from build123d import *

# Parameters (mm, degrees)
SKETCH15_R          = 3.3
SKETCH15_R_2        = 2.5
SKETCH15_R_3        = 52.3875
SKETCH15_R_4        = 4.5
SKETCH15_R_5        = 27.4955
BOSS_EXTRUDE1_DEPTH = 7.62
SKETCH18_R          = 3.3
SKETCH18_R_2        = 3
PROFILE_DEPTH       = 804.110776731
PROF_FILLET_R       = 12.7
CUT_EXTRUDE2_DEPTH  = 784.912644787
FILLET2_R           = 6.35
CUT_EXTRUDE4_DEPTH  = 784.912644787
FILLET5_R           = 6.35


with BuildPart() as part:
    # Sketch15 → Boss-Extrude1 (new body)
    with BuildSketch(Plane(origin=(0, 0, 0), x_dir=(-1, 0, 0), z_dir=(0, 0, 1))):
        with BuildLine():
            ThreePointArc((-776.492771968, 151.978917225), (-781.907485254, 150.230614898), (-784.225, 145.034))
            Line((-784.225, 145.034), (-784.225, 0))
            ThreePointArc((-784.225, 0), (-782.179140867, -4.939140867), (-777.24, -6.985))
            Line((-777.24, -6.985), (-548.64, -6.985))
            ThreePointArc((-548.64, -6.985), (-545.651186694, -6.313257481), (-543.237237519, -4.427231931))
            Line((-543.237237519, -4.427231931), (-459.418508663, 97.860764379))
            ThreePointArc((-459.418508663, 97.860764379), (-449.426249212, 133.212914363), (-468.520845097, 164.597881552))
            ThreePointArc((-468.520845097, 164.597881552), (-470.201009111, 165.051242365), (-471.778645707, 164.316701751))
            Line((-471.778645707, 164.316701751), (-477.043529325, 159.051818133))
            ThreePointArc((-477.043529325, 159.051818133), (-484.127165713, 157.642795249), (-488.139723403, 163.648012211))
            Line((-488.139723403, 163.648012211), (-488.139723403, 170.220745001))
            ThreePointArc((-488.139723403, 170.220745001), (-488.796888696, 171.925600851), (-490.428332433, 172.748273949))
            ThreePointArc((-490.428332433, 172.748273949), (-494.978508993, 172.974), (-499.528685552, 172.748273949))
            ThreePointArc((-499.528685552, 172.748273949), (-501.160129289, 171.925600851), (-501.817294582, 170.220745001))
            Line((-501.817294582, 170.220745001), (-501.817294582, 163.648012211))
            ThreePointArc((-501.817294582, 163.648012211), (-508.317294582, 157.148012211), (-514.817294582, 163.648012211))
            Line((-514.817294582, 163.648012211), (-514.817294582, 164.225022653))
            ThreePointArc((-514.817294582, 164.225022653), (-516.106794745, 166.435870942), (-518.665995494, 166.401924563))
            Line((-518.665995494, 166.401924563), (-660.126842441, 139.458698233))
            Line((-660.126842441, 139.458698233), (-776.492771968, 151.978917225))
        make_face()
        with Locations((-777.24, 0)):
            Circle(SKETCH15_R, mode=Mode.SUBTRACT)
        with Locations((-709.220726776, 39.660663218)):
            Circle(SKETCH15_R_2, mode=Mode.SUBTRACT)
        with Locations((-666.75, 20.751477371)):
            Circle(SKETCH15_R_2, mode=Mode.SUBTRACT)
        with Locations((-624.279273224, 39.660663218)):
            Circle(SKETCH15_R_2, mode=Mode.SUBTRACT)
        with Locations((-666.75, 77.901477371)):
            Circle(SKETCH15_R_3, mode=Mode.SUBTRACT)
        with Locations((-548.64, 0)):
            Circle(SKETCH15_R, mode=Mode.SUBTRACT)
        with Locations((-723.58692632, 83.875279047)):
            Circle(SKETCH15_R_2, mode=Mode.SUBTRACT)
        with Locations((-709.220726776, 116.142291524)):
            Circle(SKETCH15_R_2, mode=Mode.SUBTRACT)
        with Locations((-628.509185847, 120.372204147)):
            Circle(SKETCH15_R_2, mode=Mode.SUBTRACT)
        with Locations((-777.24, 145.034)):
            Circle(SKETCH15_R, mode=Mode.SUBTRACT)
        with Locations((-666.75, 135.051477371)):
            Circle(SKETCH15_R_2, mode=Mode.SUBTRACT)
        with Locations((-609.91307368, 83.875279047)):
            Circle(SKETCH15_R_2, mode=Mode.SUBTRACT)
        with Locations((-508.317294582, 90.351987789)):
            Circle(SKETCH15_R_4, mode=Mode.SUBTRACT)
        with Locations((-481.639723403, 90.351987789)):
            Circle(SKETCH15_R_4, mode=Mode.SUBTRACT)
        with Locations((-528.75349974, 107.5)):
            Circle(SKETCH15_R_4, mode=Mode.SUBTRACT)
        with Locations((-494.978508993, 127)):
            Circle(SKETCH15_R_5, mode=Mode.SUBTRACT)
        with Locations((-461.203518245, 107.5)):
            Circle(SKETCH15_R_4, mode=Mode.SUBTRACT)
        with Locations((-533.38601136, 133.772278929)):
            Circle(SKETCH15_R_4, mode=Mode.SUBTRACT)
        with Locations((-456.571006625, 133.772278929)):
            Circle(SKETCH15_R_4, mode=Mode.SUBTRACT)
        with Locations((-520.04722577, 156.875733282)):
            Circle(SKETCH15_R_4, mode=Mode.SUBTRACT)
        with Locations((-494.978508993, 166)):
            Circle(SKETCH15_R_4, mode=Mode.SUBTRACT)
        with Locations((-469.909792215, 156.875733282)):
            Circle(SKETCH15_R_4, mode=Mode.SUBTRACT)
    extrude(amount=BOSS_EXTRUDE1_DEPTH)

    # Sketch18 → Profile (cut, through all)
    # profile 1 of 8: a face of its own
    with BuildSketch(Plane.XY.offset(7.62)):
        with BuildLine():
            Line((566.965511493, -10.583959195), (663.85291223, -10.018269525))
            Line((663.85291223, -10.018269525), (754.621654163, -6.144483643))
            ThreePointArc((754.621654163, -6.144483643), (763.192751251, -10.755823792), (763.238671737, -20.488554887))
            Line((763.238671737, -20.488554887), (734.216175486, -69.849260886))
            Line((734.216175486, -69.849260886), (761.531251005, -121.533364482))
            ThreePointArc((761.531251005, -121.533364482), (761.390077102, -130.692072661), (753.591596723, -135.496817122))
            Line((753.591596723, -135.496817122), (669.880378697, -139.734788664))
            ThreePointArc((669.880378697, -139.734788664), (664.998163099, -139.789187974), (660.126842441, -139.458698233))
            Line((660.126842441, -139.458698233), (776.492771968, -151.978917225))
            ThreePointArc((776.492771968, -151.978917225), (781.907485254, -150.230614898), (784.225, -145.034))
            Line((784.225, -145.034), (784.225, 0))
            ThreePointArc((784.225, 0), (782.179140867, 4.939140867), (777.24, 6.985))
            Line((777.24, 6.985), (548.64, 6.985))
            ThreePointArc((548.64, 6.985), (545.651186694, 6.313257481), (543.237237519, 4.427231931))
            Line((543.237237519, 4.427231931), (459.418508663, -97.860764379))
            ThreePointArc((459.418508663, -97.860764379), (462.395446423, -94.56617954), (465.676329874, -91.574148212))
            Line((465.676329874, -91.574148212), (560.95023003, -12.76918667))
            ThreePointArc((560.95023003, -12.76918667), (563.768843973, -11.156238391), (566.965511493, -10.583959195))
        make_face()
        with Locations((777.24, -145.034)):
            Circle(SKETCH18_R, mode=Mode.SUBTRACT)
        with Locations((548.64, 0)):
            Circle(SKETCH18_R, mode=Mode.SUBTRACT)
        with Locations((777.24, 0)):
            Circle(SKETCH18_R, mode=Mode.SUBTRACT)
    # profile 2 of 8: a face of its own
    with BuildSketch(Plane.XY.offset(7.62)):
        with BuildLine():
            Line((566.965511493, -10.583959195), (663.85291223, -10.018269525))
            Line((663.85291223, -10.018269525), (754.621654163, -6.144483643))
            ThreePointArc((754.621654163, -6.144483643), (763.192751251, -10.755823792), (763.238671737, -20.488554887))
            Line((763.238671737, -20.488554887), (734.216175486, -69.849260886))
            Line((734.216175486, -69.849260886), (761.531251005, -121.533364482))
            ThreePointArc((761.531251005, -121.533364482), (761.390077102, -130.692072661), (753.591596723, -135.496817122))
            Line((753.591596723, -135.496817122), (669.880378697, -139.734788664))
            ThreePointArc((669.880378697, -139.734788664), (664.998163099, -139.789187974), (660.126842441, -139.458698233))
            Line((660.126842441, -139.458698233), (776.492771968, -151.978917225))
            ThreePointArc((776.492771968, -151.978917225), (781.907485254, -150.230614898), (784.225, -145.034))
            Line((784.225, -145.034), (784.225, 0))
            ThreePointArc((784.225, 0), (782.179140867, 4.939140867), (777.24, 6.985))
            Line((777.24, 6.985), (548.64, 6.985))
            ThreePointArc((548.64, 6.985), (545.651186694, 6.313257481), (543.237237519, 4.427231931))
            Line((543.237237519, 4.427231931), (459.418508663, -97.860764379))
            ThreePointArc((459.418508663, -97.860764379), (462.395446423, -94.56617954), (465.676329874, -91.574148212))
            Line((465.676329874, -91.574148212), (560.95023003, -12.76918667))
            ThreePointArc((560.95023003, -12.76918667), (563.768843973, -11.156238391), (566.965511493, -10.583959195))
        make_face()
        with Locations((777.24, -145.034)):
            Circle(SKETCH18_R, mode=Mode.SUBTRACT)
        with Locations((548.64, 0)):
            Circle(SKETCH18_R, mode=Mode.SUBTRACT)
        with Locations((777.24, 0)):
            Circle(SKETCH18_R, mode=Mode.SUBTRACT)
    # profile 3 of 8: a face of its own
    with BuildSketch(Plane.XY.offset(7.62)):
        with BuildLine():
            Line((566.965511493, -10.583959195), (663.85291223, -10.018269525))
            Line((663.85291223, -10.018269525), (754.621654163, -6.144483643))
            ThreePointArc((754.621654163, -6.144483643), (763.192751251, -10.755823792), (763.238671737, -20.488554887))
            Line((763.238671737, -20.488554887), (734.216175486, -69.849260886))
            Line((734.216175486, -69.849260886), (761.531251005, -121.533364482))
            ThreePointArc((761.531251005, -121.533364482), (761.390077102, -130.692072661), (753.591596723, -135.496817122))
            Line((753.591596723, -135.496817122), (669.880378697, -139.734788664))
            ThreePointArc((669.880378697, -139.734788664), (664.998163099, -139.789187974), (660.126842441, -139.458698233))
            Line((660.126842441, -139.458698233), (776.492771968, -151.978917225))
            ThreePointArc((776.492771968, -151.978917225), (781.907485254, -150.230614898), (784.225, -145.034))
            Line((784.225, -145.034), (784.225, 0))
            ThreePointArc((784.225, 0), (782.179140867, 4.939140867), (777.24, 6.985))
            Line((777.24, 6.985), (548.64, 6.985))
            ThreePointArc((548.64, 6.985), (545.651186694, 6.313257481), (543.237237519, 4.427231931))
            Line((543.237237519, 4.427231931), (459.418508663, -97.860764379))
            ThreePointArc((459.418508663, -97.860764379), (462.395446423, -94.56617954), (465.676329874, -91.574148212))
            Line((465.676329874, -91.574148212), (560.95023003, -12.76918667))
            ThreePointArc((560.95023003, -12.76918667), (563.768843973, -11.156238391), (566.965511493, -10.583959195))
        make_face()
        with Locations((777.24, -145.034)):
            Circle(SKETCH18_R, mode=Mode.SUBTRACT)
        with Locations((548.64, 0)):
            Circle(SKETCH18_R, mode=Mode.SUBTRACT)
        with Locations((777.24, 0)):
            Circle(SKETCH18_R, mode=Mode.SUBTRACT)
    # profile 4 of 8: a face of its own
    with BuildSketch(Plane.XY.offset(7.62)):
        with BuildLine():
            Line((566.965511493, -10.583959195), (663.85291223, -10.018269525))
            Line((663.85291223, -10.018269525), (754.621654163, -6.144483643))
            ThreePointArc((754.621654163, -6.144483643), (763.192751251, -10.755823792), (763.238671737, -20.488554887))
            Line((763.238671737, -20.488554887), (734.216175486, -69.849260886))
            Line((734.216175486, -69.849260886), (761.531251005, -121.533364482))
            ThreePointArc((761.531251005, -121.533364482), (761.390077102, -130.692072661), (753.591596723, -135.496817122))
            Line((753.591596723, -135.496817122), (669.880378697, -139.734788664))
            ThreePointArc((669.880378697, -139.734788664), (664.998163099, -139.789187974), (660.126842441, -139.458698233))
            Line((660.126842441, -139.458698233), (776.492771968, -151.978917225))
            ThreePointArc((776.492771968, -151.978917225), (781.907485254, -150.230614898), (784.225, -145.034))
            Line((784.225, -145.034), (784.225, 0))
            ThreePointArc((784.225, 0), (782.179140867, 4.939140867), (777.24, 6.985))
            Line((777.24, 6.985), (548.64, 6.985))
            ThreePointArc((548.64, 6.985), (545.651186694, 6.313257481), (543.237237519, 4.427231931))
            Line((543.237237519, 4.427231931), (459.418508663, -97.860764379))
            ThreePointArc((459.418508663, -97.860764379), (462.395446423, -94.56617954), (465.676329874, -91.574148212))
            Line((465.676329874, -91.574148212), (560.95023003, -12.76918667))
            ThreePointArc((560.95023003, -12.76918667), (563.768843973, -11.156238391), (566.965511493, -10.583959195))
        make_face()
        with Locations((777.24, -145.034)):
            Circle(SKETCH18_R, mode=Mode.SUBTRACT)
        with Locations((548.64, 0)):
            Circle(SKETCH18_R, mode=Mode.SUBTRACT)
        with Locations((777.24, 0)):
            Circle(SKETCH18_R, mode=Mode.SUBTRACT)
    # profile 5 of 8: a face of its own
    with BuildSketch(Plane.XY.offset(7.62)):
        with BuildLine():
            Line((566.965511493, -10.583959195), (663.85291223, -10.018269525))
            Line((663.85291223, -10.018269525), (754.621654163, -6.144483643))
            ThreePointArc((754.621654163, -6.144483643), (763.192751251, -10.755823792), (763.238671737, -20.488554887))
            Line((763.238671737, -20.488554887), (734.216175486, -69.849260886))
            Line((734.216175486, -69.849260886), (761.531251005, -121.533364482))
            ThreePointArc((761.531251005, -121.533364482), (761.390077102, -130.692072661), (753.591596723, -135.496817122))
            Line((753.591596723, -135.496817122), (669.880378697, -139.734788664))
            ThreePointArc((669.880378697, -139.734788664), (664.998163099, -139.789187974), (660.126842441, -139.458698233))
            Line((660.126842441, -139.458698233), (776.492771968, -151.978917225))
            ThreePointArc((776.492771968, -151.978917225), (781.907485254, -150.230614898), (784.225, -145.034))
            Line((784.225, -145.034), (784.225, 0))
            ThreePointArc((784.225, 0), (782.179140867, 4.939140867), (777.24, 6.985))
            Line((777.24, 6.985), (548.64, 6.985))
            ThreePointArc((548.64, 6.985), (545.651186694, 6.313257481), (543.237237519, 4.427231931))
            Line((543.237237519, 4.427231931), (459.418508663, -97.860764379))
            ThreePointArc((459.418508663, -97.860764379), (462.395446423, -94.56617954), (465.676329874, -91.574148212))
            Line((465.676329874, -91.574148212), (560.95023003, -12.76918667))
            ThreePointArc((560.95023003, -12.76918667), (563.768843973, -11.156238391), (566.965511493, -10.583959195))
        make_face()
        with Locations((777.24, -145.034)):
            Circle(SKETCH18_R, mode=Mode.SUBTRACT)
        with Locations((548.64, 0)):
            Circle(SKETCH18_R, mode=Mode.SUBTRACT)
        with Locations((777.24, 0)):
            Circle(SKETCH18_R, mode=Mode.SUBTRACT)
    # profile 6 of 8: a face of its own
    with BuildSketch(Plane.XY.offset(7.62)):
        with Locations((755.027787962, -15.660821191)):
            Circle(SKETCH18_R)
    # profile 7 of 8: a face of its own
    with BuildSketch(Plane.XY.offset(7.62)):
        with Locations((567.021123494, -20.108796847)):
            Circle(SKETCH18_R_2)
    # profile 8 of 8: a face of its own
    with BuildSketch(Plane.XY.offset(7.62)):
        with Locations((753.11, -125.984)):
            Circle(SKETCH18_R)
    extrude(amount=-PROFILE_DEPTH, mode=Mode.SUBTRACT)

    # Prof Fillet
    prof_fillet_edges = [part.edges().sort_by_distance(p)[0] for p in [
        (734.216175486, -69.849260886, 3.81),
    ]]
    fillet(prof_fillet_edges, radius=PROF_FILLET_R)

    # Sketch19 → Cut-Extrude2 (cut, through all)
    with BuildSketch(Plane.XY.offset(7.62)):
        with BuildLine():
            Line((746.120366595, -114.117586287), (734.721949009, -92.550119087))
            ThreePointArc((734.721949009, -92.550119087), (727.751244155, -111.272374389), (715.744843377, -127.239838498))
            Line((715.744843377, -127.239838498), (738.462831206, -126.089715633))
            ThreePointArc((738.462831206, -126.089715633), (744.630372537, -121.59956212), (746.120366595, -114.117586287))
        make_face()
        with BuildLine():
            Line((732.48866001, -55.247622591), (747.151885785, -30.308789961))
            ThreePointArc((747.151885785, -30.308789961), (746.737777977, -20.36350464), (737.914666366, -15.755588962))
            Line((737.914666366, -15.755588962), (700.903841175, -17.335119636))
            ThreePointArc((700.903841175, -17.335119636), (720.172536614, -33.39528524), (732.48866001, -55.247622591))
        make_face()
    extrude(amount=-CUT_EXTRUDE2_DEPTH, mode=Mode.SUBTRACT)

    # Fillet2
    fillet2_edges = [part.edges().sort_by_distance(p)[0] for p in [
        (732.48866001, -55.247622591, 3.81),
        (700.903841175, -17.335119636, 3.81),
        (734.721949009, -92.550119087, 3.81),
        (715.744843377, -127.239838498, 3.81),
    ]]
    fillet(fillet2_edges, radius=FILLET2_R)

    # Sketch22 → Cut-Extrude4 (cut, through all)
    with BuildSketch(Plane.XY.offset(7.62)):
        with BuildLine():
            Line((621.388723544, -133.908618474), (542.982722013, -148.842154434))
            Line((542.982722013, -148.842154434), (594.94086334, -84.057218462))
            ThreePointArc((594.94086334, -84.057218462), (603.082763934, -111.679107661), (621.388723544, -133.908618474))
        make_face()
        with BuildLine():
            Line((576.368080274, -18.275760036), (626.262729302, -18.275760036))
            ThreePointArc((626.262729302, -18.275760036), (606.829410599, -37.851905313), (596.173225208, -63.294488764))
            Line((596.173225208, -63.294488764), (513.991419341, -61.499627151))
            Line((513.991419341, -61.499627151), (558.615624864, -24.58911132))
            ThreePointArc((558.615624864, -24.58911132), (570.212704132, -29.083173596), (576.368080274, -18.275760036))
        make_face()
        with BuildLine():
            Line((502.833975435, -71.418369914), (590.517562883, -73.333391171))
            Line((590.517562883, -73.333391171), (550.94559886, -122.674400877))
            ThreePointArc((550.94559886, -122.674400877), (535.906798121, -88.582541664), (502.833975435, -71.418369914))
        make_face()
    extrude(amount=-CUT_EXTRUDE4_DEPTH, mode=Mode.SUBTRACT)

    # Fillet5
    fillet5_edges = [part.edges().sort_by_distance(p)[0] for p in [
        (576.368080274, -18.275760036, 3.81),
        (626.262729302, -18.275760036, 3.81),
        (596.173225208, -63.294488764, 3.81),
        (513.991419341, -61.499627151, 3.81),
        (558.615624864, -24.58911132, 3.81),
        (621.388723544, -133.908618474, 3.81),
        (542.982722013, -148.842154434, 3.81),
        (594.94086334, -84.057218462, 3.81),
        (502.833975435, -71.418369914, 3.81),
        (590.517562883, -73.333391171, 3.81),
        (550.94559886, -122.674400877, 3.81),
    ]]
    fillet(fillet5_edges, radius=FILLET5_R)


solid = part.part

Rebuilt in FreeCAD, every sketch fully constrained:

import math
import FreeCAD as App
import Part
import Sketcher

V = App.Vector
Q = App.Units.Quantity


def edges_at(feature, points):
    """Names of the edges that pass closest to the given points."""
    edges = feature.Shape.Edges
    near = lambda p: min(range(len(edges)), key=lambda i: edges[i].distToShape(Part.Vertex(*p))[0])
    return sorted({f"Edge{near(p) + 1}" for p in points})

doc = App.newDocument("Part")
body = doc.addObject("PartDesign::Body", "Body")

sketch1 = doc.addObject("Sketcher::SketchObject", "Sketch")
body.addObject(sketch1)
sketch1.AttachmentSupport = (doc.XY_Plane, [""])
sketch1.MapMode = "FlatFace"
sketch1.addGeometry([
    Part.ArcOfCircle(Part.Circle(V(777.2, -145, 0), V(0, 0, 1), 7), math.radians(-96), math.radians(0)),
    Part.LineSegment(V(784.2, -145, 0), V(784.2, 0, 0)),
    Part.ArcOfCircle(Part.Circle(V(777.2, 0, 0), V(0, 0, 1), 7), math.radians(0), math.radians(90)),
    Part.LineSegment(V(777.2, 7, 0), V(548.6, 7, 0)),
    Part.ArcOfCircle(Part.Circle(V(548.6, 0, 0), V(0, 0, 1), 7), math.radians(90), math.radians(141)),
    Part.LineSegment(V(543.2, 4.4, 0), V(459.4, -97.9, 0)),
    Part.ArcOfCircle(Part.Circle(V(495, -127, 0), V(0, 0, 1), 46), math.radians(141), math.radians(235)),
    Part.ArcOfCircle(Part.Circle(V(470, -162.5, 0), V(0, 0, 1), 2.5), math.radians(-125), math.radians(-45)),
    Part.LineSegment(V(471.8, -164.3, 0), V(477, -159.1, 0)),
    Part.ArcOfCircle(Part.Circle(V(481.6, -163.6, 0), V(0, 0, 1), 6.5), math.radians(0), math.radians(135)),
    Part.LineSegment(V(488.1, -163.6, 0), V(488.1, -170.2, 0)),
    Part.ArcOfCircle(Part.Circle(V(490.7, -170.2, 0), V(0, 0, 1), 2.5), math.radians(180), math.radians(264)),
    Part.ArcOfCircle(Part.Circle(V(495, -127, 0), V(0, 0, 1), 46), math.radians(-95.68), math.radians(-84.32)),
    Part.ArcOfCircle(Part.Circle(V(499.3, -170.2, 0), V(0, 0, 1), 2.5), math.radians(-84), math.radians(0)),
    Part.LineSegment(V(501.8, -170.2, 0), V(501.8, -163.6, 0)),
    Part.ArcOfCircle(Part.Circle(V(508.3, -163.6, 0), V(0, 0, 1), 6.5), math.radians(0), math.radians(180)),
    Part.LineSegment(V(514.8, -163.6, 0), V(514.8, -164.2, 0)),
    Part.ArcOfCircle(Part.Circle(V(517.4, -164.2, 0), V(0, 0, 1), 2.5), math.radians(-180), math.radians(-59)),
    Part.LineSegment(V(518.7, -166.4, 0), V(660.1, -139.5, 0)),
    Part.LineSegment(V(660.1, -139.5, 0), V(776.5, -152, 0)),
    Part.Circle(V(777.2, 0, 0), V(0, 0, 1), 3.3),
    Part.Circle(V(709.2, -39.7, 0), V(0, 0, 1), 2.5),
    Part.Circle(V(666.8, -20.8, 0), V(0, 0, 1), 2.5),
    Part.Circle(V(624.3, -39.7, 0), V(0, 0, 1), 2.5),
    Part.Circle(V(666.8, -77.9, 0), V(0, 0, 1), 52.4),
    Part.Circle(V(548.6, 0, 0), V(0, 0, 1), 3.3),
    Part.Circle(V(723.6, -83.9, 0), V(0, 0, 1), 2.5),
    Part.Circle(V(709.2, -116.1, 0), V(0, 0, 1), 2.5),
    Part.Circle(V(628.5, -120.4, 0), V(0, 0, 1), 2.5),
    Part.Circle(V(777.2, -145, 0), V(0, 0, 1), 3.3),
    Part.Circle(V(666.8, -135.1, 0), V(0, 0, 1), 2.5),
    Part.Circle(V(609.9, -83.9, 0), V(0, 0, 1), 2.5),
    Part.Circle(V(508.3, -90.4, 0), V(0, 0, 1), 4.5),
    Part.Circle(V(481.6, -90.4, 0), V(0, 0, 1), 4.5),
    Part.Circle(V(528.8, -107.5, 0), V(0, 0, 1), 4.5),
    Part.Circle(V(495, -127, 0), V(0, 0, 1), 27.5),
    Part.Circle(V(461.2, -107.5, 0), V(0, 0, 1), 4.5),
    Part.Circle(V(533.4, -133.8, 0), V(0, 0, 1), 4.5),
    Part.Circle(V(456.6, -133.8, 0), V(0, 0, 1), 4.5),
    Part.Circle(V(520, -156.9, 0), V(0, 0, 1), 4.5),
    Part.Circle(V(495, -166, 0), V(0, 0, 1), 4.5),
    Part.Circle(V(469.9, -156.9, 0), V(0, 0, 1), 4.5),
], False)
sketch1.addConstraint([
    Sketcher.Constraint("Tangent", 0, 2, 1, 1),
    Sketcher.Constraint("Tangent", 1, 2, 2, 1),
    Sketcher.Constraint("Tangent", 2, 2, 3, 1),
    Sketcher.Constraint("Tangent", 3, 2, 4, 1),
    Sketcher.Constraint("Tangent", 4, 2, 5, 1),
    Sketcher.Constraint("Tangent", 5, 2, 6, 1),
    Sketcher.Constraint("Tangent", 6, 2, 7, 1),
    Sketcher.Constraint("Tangent", 7, 2, 8, 1),
    Sketcher.Constraint("Tangent", 8, 2, 9, 2),
    Sketcher.Constraint("Tangent", 9, 1, 10, 1),
    Sketcher.Constraint("Tangent", 10, 2, 11, 1),
    Sketcher.Constraint("Tangent", 11, 2, 12, 1),
    Sketcher.Constraint("Tangent", 12, 2, 13, 1),
    Sketcher.Constraint("Tangent", 13, 2, 14, 1),
    Sketcher.Constraint("Tangent", 14, 2, 15, 2),
    Sketcher.Constraint("Tangent", 15, 1, 16, 1),
    Sketcher.Constraint("Tangent", 16, 2, 17, 1),
    Sketcher.Constraint("Coincident", 17, 2, 18, 1),
    Sketcher.Constraint("Coincident", 18, 2, 19, 1),
    Sketcher.Constraint("Tangent", 19, 2, 0, 1),
    Sketcher.Constraint("Vertical", 1),
    Sketcher.Constraint("Horizontal", 3),
    Sketcher.Constraint("Vertical", 10),
    Sketcher.Constraint("Vertical", 14),
    Sketcher.Constraint("Vertical", 16),
    Sketcher.Constraint("Coincident", 12, 3, 6, 3),
    Sketcher.Constraint("Coincident", 20, 3, 2, 3),
    Sketcher.Constraint("Coincident", 25, 3, 4, 3),
    Sketcher.Constraint("Coincident", 29, 3, 0, 3),
    Sketcher.Constraint("Coincident", 35, 3, 6, 3),
    Sketcher.Constraint("Equal", 0, 2),
    Sketcher.Constraint("Equal", 2, 4),
    Sketcher.Constraint("Equal", 7, 11),
    Sketcher.Constraint("Equal", 6, 12),
    Sketcher.Constraint("Equal", 11, 13),
    Sketcher.Constraint("Equal", 9, 15),
    Sketcher.Constraint("Equal", 13, 17),
    Sketcher.Constraint("Equal", 21, 22),
    Sketcher.Constraint("Equal", 22, 23),
    Sketcher.Constraint("Equal", 20, 25),
    Sketcher.Constraint("Equal", 23, 26),
    Sketcher.Constraint("Equal", 26, 27),
    Sketcher.Constraint("Equal", 27, 28),
    Sketcher.Constraint("Equal", 25, 29),
    Sketcher.Constraint("Equal", 28, 30),
    Sketcher.Constraint("Equal", 30, 31),
    Sketcher.Constraint("Equal", 32, 33),
    Sketcher.Constraint("Equal", 33, 34),
    Sketcher.Constraint("Equal", 34, 36),
    Sketcher.Constraint("Equal", 36, 37),
    Sketcher.Constraint("Equal", 37, 38),
    Sketcher.Constraint("Equal", 38, 39),
    Sketcher.Constraint("Equal", 39, 40),
    Sketcher.Constraint("Equal", 40, 41),
    Sketcher.Constraint("PointOnObject", 2, 3, -1),
    Sketcher.Constraint("Horizontal", 11, 3, 13, 3),
    Sketcher.Constraint("Horizontal", 9, 3, 15, 3),
    Sketcher.Constraint("Horizontal", 21, 3, 23, 3),
    Sketcher.Constraint("Horizontal", 26, 3, 31, 3),
    Sketcher.Constraint("Horizontal", 32, 3, 33, 3),
    Sketcher.Constraint("Horizontal", 34, 3, 36, 3),
    Sketcher.Constraint("Horizontal", 37, 3, 38, 3),
    Sketcher.Constraint("Horizontal", 39, 3, 41, 3),
    Sketcher.Constraint("Vertical", 22, 3, 24, 3),
    Sketcher.Constraint("Vertical", 21, 3, 27, 3),
    Sketcher.Constraint("Vertical", 24, 3, 30, 3),
    Sketcher.Constraint("Vertical", 15, 3, 32, 3),
    Sketcher.Constraint("Vertical", 9, 3, 33, 3),
    Sketcher.Constraint("Vertical", 35, 3, 40, 3),
    Sketcher.Constraint("Radius", 7, Q("0.1 in")),
    Sketcher.Constraint("DistanceX", 3, 2, 3, 1, Q("9 in")),
    Sketcher.Constraint("Radius", 6, Q("1.81 in")),
    Sketcher.Constraint("Diameter", 24, Q("4.125 in")),
    Sketcher.Constraint("Diameter", 35, Q("2.165 in")),
    Sketcher.Constraint("DistanceY", 6, 3, -1, 1, Q("5 in")),
    Sketcher.Constraint("Angle", 8, Q("45 deg")),
    Sketcher.Constraint("Radius", 0, Q("0.275 in")),
    Sketcher.Constraint("DistanceY", 1, 1, 1, 2, Q("5.71 in")),
    Sketcher.Constraint("DistanceX", -1, 1, 0, 3, Q("30.6 in")),
    Sketcher.Constraint("DistanceX", 5, 2, 12, 3, Q("1.4 in")),
    Sketcher.Constraint("Diameter", 20, Q("6.6 mm")),
    Sketcher.Constraint("Diameter", 21, Q("5 mm")),
    Sketcher.Constraint("Diameter", 32, Q("9 mm")),
    Sketcher.Constraint("DistanceX", -1, 1, 22, 3, Q("26.25 in")),
    Sketcher.Constraint("Radius", 9, Q("6.5 mm")),
    Sketcher.Constraint("DistanceY", 24, 3, 22, 3, Q("2.25 in")),
    Sketcher.Constraint("DistanceY", 30, 3, 24, 3, Q("2.25 in")),
    Sketcher.Constraint("DistanceY", 18, 2, -1, 1, Q("5.4904999 in")),
    Sketcher.Constraint("DistanceY", 16, 2, 16, 1, Q("0.57701 mm")),
    Sketcher.Constraint("DistanceX", -1, 1, 34, 3, Q("528.7535 mm")),
    Sketcher.Constraint("DistanceY", 34, 3, -1, 1, Q("107.5 mm")),
    Sketcher.Constraint("DistanceY", 40, 3, -1, 1, Q("166 mm")),
    Sketcher.Constraint("DistanceY", 7, 2, -1, 1, Q("164.316702 mm")),
    Sketcher.Constraint("DistanceX", 7, 3, 13, 3, Q("29.2947 mm")),
    Sketcher.Constraint("DistanceX", 21, 3, 26, 3, Q("14.3662 mm")),
    Sketcher.Constraint("DistanceY", 26, 3, 24, 3, Q("5.973802 mm")),
    Sketcher.Constraint("DistanceX", 31, 3, 23, 3, Q("14.3662 mm")),
    Sketcher.Constraint("DistanceX", 17, 3, 17, 2, Q("1.308701 mm")),
    Sketcher.Constraint("Distance", 18, Q("144.003849 mm")),
    Sketcher.Constraint("DistanceY", 26, 3, -1, 1, Q("83.875279 mm")),
    Sketcher.Constraint("DistanceY", 27, 3, -1, 1, Q("116.142292 mm")),
    Sketcher.Constraint("DistanceX", -1, 1, 36, 3, Q("461.203518 mm")),
    Sketcher.Constraint("DistanceX", -1, 1, 37, 3, Q("533.386011 mm")),
    Sketcher.Constraint("DistanceY", 37, 3, -1, 1, Q("133.772279 mm")),
    Sketcher.Constraint("DistanceY", 17, 3, 21, 3, Q("124.564359 mm")),
    Sketcher.Constraint("DistanceX", 28, 3, 27, 3, Q("80.711541 mm")),
    Sketcher.Constraint("DistanceY", 28, 3, 23, 3, Q("80.711541 mm")),
    Sketcher.Constraint("DistanceX", 38, 3, 36, 3, Q("4.632512 mm")),
    Sketcher.Constraint("DistanceX", 17, 3, 39, 3, Q("2.689931 mm")),
    Sketcher.Constraint("DistanceY", 17, 3, 39, 3, Q("7.349289 mm")),
    Sketcher.Constraint("DistanceX", 41, 3, 9, 3, Q("11.729931 mm")),
    Sketcher.Constraint("DistanceY", 32, 3, 4, 2, Q("94.77922 mm")),
    Sketcher.Constraint("DistanceX", 31, 3, 18, 2, Q("50.213769 mm")),
    Sketcher.Constraint("DistanceX", -1, 1, 21, 3, Q("709.220727 mm")),
])
pad1 = doc.addObject("PartDesign::Pad", "Pad")
body.addObject(pad1)
pad1.Profile = sketch1
pad1.Length = Q("0.3 in")

sketch2 = doc.addObject("Sketcher::SketchObject", "Sketch001")
body.addObject(sketch2)
sketch2.AttachmentSupport = (doc.XY_Plane, [""])
sketch2.MapMode = "FlatFace"
sketch2.AttachmentOffset = App.Placement(V(0, 0, 0.3 * 25.4), App.Rotation())
sketch2.addGeometry([
    Part.LineSegment(V(567, -10.6, 0), V(663.9, -10, 0)),
    Part.LineSegment(V(663.9, -10, 0), V(754.6, -6.1, 0)),
    Part.ArcOfCircle(Part.Circle(V(755, -15.7, 0), V(0, 0, 1), 9.5), math.radians(-30), math.radians(92)),
    Part.LineSegment(V(763.2, -20.5, 0), V(734.2, -69.8, 0)),
    Part.LineSegment(V(734.2, -69.8, 0), V(761.5, -121.5, 0)),
    Part.ArcOfCircle(Part.Circle(V(753.1, -126, 0), V(0, 0, 1), 9.5), math.radians(-87), math.radians(28)),
    Part.LineSegment(V(753.6, -135.5, 0), V(669.9, -139.7, 0)),
    Part.ArcOfCircle(Part.Circle(V(666.8, -77.9, 0), V(0, 0, 1), 61.9), math.radians(-96.14), math.radians(-87.1)),
    Part.LineSegment(V(660.1, -139.5, 0), V(776.5, -152, 0)),
    Part.ArcOfCircle(Part.Circle(V(777.2, -145, 0), V(0, 0, 1), 7), math.radians(-96), math.radians(0)),
    Part.LineSegment(V(784.2, -145, 0), V(784.2, 0, 0)),
    Part.ArcOfCircle(Part.Circle(V(777.2, 0, 0), V(0, 0, 1), 7), math.radians(0), math.radians(90)),
    Part.LineSegment(V(777.2, 7, 0), V(548.6, 7, 0)),
    Part.ArcOfCircle(Part.Circle(V(548.6, 0, 0), V(0, 0, 1), 7), math.radians(90), math.radians(141)),
    Part.LineSegment(V(543.2, 4.4, 0), V(459.4, -97.9, 0)),
    Part.ArcOfCircle(Part.Circle(V(495, -127, 0), V(0, 0, 1), 46), math.radians(129.6), math.radians(140.67)),
    Part.LineSegment(V(465.7, -91.6, 0), V(561, -12.8, 0)),
    Part.ArcOfCircle(Part.Circle(V(567, -20.1, 0), V(0, 0, 1), 9.5), math.radians(90), math.radians(130)),
    Part.Circle(V(777.2, -145, 0), V(0, 0, 1), 3.3),
    Part.Circle(V(548.6, 0, 0), V(0, 0, 1), 3.3),
    Part.Circle(V(777.2, 0, 0), V(0, 0, 1), 3.3),
    Part.Circle(V(755, -15.7, 0), V(0, 0, 1), 3.3),
    Part.Circle(V(567, -20.1, 0), V(0, 0, 1), 3),
    Part.Circle(V(753.1, -126, 0), V(0, 0, 1), 3.3),
], False)
sketch2.addConstraint([
    Sketcher.Constraint("Coincident", 0, 2, 1, 1),
    Sketcher.Constraint("Tangent", 1, 2, 2, 2),
    Sketcher.Constraint("Tangent", 2, 1, 3, 1),
    Sketcher.Constraint("Coincident", 3, 2, 4, 1),
    Sketcher.Constraint("Tangent", 4, 2, 5, 2),
    Sketcher.Constraint("Tangent", 5, 1, 6, 1),
    Sketcher.Constraint("Tangent", 6, 2, 7, 2),
    Sketcher.Constraint("Tangent", 7, 1, 8, 1),
    Sketcher.Constraint("Tangent", 8, 2, 9, 1),
    Sketcher.Constraint("Tangent", 9, 2, 10, 1),
    Sketcher.Constraint("Tangent", 10, 2, 11, 1),
    Sketcher.Constraint("Tangent", 11, 2, 12, 1),
    Sketcher.Constraint("Tangent", 12, 2, 13, 1),
    Sketcher.Constraint("Tangent", 13, 2, 14, 1),
    Sketcher.Constraint("Tangent", 14, 2, 15, 2),
    Sketcher.Constraint("Tangent", 15, 1, 16, 1),
    Sketcher.Constraint("Tangent", 16, 2, 17, 2),
    Sketcher.Constraint("Tangent", 17, 1, 0, 1),
    Sketcher.Constraint("Vertical", 10),
    Sketcher.Constraint("Horizontal", 12),
    Sketcher.Constraint("Coincident", 18, 3, 9, 3),
    Sketcher.Constraint("Coincident", 19, 3, 13, 3),
    Sketcher.Constraint("Coincident", 20, 3, 11, 3),
    Sketcher.Constraint("Coincident", 21, 3, 2, 3),
    Sketcher.Constraint("Coincident", 22, 3, 17, 3),
    Sketcher.Constraint("Coincident", 23, 3, 5, 3),
    Sketcher.Constraint("Equal", 2, 5),
    Sketcher.Constraint("Equal", 9, 11),
    Sketcher.Constraint("Equal", 11, 13),
    Sketcher.Constraint("Equal", 5, 17),
    Sketcher.Constraint("Equal", 18, 19),
    Sketcher.Constraint("Equal", 19, 20),
    Sketcher.Constraint("Equal", 20, 21),
    Sketcher.Constraint("Equal", 21, 23),
    Sketcher.Constraint("PointOnObject", 11, 3, -1),
    Sketcher.Constraint("DistanceX", 12, 2, 12, 1, Q("9 in")),
    Sketcher.Constraint("Radius", 15, Q("1.81 in")),
    Sketcher.Constraint("DistanceY", 15, 3, -1, 1, Q("5 in")),
    Sketcher.Constraint("Radius", 2, Q("0.375 in")),
    Sketcher.Constraint("Radius", 7, Q("2.4375 in")),
    Sketcher.Constraint("Radius", 9, Q("0.275 in")),
    Sketcher.Constraint("DistanceY", 10, 1, 10, 2, Q("5.71 in")),
    Sketcher.Constraint("DistanceX", -1, 1, 9, 3, Q("30.6 in")),
    Sketcher.Constraint("DistanceX", 7, 3, 5, 3, Q("3.4 in")),
    Sketcher.Constraint("DistanceX", 14, 2, 15, 3, Q("1.4 in")),
    Sketcher.Constraint("Diameter", 18, Q("6.6 mm")),
    Sketcher.Constraint("Diameter", 22, Q("6 mm")),
    Sketcher.Constraint("DistanceX", -1, 1, 5, 3, Q("29.65 in")),
    Sketcher.Constraint("DistanceY", 5, 3, -1, 1, Q("4.96 in")),
    Sketcher.Constraint("DistanceY", 7, 1, -1, 1, Q("5.4904999 in")),
    Sketcher.Constraint("Distance", 4, Q("58.458189 mm")),
    Sketcher.Constraint("DistanceY", 2, 3, -1, 1, Q("15.660821 mm")),
    Sketcher.Constraint("DistanceY", 0, 2, -1, 1, Q("10.01827 mm")),
    Sketcher.Constraint("DistanceX", -1, 1, 2, 1, Q("763.238672 mm")),
    Sketcher.Constraint("DistanceY", 3, 2, -1, 1, Q("69.849261 mm")),
    Sketcher.Constraint("DistanceX", -1, 1, 15, 1, Q("465.67633 mm")),
    Sketcher.Constraint("DistanceX", -1, 1, 16, 2, Q("560.95023 mm")),
    Sketcher.Constraint("DistanceX", 17, 3, 0, 2, Q("96.831789 mm")),
])
pocket1 = doc.addObject("PartDesign::Pocket", "Pocket")
body.addObject(pocket1)
pocket1.Profile = sketch2
pocket1.Length = 804.110777
doc.recompute()

fillet = doc.addObject("PartDesign::Fillet", "Fillet")
body.addObject(fillet)
fillet.Base = (pocket1, edges_at(pocket1, [(734.216, -69.849, 3.81)]))
fillet.Radius = Q("0.5 in")

sketch3 = doc.addObject("Sketcher::SketchObject", "Sketch002")
body.addObject(sketch3)
sketch3.AttachmentSupport = (doc.XY_Plane, [""])
sketch3.MapMode = "FlatFace"
sketch3.AttachmentOffset = App.Placement(V(0, 0, 0.3 * 25.4), App.Rotation())
sketch3.addGeometry([
    Part.LineSegment(V(746.120367, -114.117586, 0), V(734.721949, -92.550119, 0)),
    Part.ArcOfCircle(Part.Circle(V(666.75, -77.901477, 0), V(0, 0, 1), 69.5325), math.radians(-45.200157), math.radians(-12.161813)),
    Part.LineSegment(V(715.744843, -127.239838, 0), V(738.462831, -126.089716, 0)),
    Part.ArcOfCircle(Part.Circle(V(735.800353, -115.951763, 0), V(0, 0, 1), 10.48174), math.radians(-75.285006), math.radians(10.077947)),
    Part.LineSegment(V(732.48866, -55.247623, 0), V(747.151886, -30.30879, 0)),
    Part.ArcOfCircle(Part.Circle(V(738.338834, -25.694489, 0), V(0, 0, 1), 9.947947), math.radians(-27.635468), math.radians(92.44376)),
    Part.LineSegment(V(737.914666, -15.755589, 0), V(700.903841, -17.33512, 0)),
    Part.ArcOfCircle(Part.Circle(V(666.75, -77.901477, 0), V(0, 0, 1), 69.5325), math.radians(19.014195), math.radians(60.58101)),
], False)
sketch3.addConstraint([
    Sketcher.Constraint("Coincident", 0, 2, 1, 2),
    Sketcher.Constraint("Coincident", 1, 1, 2, 1),
    Sketcher.Constraint("Coincident", 2, 2, 3, 1),
    Sketcher.Constraint("Coincident", 3, 2, 0, 1),
    Sketcher.Constraint("Coincident", 4, 2, 5, 1),
    Sketcher.Constraint("Coincident", 5, 2, 6, 1),
    Sketcher.Constraint("Coincident", 6, 2, 7, 2),
    Sketcher.Constraint("Coincident", 7, 1, 4, 1),
    Sketcher.Constraint("Coincident", 7, 3, 1, 3),
    Sketcher.Constraint("Radius", 1, Q("2.7375 in")),
    Sketcher.Constraint("Radius", 7, Q("2.7375 in")),
    Sketcher.Constraint("DistanceX", -1, 1, 1, 3, Q("26.25 in")),
    Sketcher.Constraint("Radius", 3, Q("10.48174 mm")),
    Sketcher.Constraint("Radius", 5, Q("9.947947 mm")),
    Sketcher.Constraint("DistanceY", 4, 2, 5, 3, Q("4.614301 mm")),
    Sketcher.Constraint("DistanceY", 5, 3, 5, 2, Q("9.9389 mm")),
    Sketcher.Constraint("DistanceY", 5, 3, -1, 1, Q("25.694489 mm")),
    Sketcher.Constraint("DistanceX", -1, 1, 0, 2, Q("734.721949 mm")),
    Sketcher.Constraint("DistanceY", 0, 2, -1, 1, Q("92.550119 mm")),
    Sketcher.Constraint("DistanceY", 1, 1, -1, 1, Q("127.239838 mm")),
    Sketcher.Constraint("DistanceX", -1, 1, 2, 2, Q("738.462831 mm")),
    Sketcher.Constraint("DistanceX", -1, 1, 6, 2, Q("700.903841 mm")),
    Sketcher.Constraint("DistanceX", -1, 1, 7, 1, Q("732.48866 mm")),
    Sketcher.Constraint("DistanceX", 3, 3, 5, 3, Q("2.538481 mm")),
    Sketcher.Constraint("DistanceX", 1, 1, 3, 3, Q("20.05551 mm")),
    Sketcher.Constraint("DistanceY", 2, 2, 1, 3, Q("48.188238 mm")),
    Sketcher.Constraint("DistanceY", 2, 2, 3, 2, Q("11.972129 mm")),
])
pocket2 = doc.addObject("PartDesign::Pocket", "Pocket001")
body.addObject(pocket2)
pocket2.Profile = sketch3
pocket2.Type = "ThroughAll"
doc.recompute()

fillet2 = doc.addObject("PartDesign::Fillet", "Fillet001")
body.addObject(fillet2)
fillet2.Base = (pocket2, edges_at(pocket2, [
    (732.489, -55.248, 3.81),
    (700.904, -17.335, 3.81),
    (734.722, -92.55, 3.81),
    (715.745, -127.24, 3.81),
]))
fillet2.Radius = Q("0.25 in")

sketch4 = doc.addObject("Sketcher::SketchObject", "Sketch003")
body.addObject(sketch4)
sketch4.AttachmentSupport = (doc.XY_Plane, [""])
sketch4.MapMode = "FlatFace"
sketch4.AttachmentOffset = App.Placement(V(0, 0, 0.3 * 25.4), App.Rotation())
sketch4.addGeometry([
    Part.LineSegment(V(543, -149, 0), V(621, -134, 0)),
    Part.ArcOfCircle(Part.Circle(V(667, -78, 0), V(0, 0, 1), 72), math.radians(-175), math.radians(-129)),
    Part.LineSegment(V(595, -84, 0), V(543, -149, 0)),
    Part.LineSegment(V(626, -18, 0), V(576, -18, 0)),
    Part.ArcOfCircle(Part.Circle(V(567, -20, 0), V(0, 0, 1), 10), math.radians(-152), math.radians(11)),
    Part.LineSegment(V(559, -25, 0), V(514, -61, 0)),
    Part.LineSegment(V(514, -61, 0), V(596, -63, 0)),
    Part.ArcOfCircle(Part.Circle(V(667, -78, 0), V(0, 0, 1), 72), math.radians(124), math.radians(168)),
    Part.LineSegment(V(591, -73, 0), V(503, -71, 0)),
    Part.ArcOfCircle(Part.Circle(V(495, -127, 0), V(0, 0, 1), 56), math.radians(4), math.radians(82)),
    Part.LineSegment(V(551, -123, 0), V(591, -73, 0)),
], False)
sketch4.addConstraint([
    Sketcher.Constraint("Coincident", 0, 2, 1, 2),
    Sketcher.Constraint("Coincident", 1, 1, 2, 1),
    Sketcher.Constraint("Coincident", 2, 2, 0, 1),
    Sketcher.Constraint("Coincident", 3, 2, 4, 2),
    Sketcher.Constraint("Coincident", 4, 1, 5, 1),
    Sketcher.Constraint("Coincident", 5, 2, 6, 1),
    Sketcher.Constraint("Coincident", 6, 2, 7, 2),
    Sketcher.Constraint("Coincident", 7, 1, 3, 1),
    Sketcher.Constraint("Coincident", 8, 2, 9, 2),
    Sketcher.Constraint("Coincident", 9, 1, 10, 1),
    Sketcher.Constraint("Coincident", 10, 2, 8, 1),
    Sketcher.Constraint("Horizontal", 3),
    Sketcher.Constraint("Coincident", 7, 3, 1, 3),
    Sketcher.Constraint("Equal", 1, 7),
    Sketcher.Constraint("Parallel", 6, 8),
    Sketcher.Constraint("Parallel", 2, 10),
    Sketcher.Constraint("Radius", 9, Q("2.21 in")),
    Sketcher.Constraint("DistanceY", 9, 3, -1, 1, Q("5 in")),
    Sketcher.Constraint("Radius", 4, Q("0.375 in")),
    Sketcher.Constraint("Radius", 1, Q("2.8375 in")),
    Sketcher.Constraint("DistanceX", -1, 1, 1, 3, Q("26.25 in")),
    Sketcher.Constraint("DistanceX", 3, 2, 3, 1, Q("49.894649 mm")),
    Sketcher.Constraint("DistanceX", -1, 1, 9, 1, Q("550.945599 mm")),
    Sketcher.Constraint("DistanceY", 9, 1, -1, 1, Q("122.674401 mm")),
    Sketcher.Constraint("DistanceX", 4, 3, 0, 2, Q("54.3676 mm")),
    Sketcher.Constraint("DistanceY", 0, 2, 1, 1, Q("49.8514 mm")),
    Sketcher.Constraint("DistanceX", 2, 2, 0, 2, Q("78.406002 mm")),
    Sketcher.Constraint("DistanceX", 4, 1, 4, 3, Q("8.405499 mm")),
    Sketcher.Constraint("DistanceX", 4, 3, 6, 2, Q("29.152102 mm")),
    Sketcher.Constraint("DistanceX", 10, 2, 1, 1, Q("4.4233 mm")),
    Sketcher.Constraint("Distance", 2, Q("83.046592 mm")),
    Sketcher.Constraint("Distance", 5, Q("57.91119 mm")),
    Sketcher.Constraint("DistanceY", 0, 2, -1, 1, Q("133.908618 mm")),
    Sketcher.Constraint("DistanceX", -1, 1, 3, 2, Q("576.36808 mm")),
    Sketcher.Constraint("DistanceY", 3, 2, -1, 1, Q("18.27576 mm")),
    Sketcher.Constraint("DistanceX", -1, 1, 5, 2, Q("513.991419 mm")),
])
pocket3 = doc.addObject("PartDesign::Pocket", "Pocket002")
body.addObject(pocket3)
pocket3.Profile = sketch4
pocket3.Type = "ThroughAll"
doc.recompute()

fillet3 = doc.addObject("PartDesign::Fillet", "Fillet002")
body.addObject(fillet3)
fillet3.Base = (pocket3, edges_at(pocket3, [
    (576.368, -18.276, 3.81),
    (626.263, -18.276, 3.81),
    (596.173, -63.294, 3.81),
    (513.991, -61.5, 3.81),
    (558.616, -24.589, 3.81),
    (621.389, -133.909, 3.81),
    (542.983, -148.842, 3.81),
    (594.941, -84.057, 3.81),
    (502.834, -71.418, 3.81),
    (590.518, -73.333, 3.81),
    (550.946, -122.674, 3.81),
]))
fillet3.Radius = Q("0.25 in")

doc.recompute()
